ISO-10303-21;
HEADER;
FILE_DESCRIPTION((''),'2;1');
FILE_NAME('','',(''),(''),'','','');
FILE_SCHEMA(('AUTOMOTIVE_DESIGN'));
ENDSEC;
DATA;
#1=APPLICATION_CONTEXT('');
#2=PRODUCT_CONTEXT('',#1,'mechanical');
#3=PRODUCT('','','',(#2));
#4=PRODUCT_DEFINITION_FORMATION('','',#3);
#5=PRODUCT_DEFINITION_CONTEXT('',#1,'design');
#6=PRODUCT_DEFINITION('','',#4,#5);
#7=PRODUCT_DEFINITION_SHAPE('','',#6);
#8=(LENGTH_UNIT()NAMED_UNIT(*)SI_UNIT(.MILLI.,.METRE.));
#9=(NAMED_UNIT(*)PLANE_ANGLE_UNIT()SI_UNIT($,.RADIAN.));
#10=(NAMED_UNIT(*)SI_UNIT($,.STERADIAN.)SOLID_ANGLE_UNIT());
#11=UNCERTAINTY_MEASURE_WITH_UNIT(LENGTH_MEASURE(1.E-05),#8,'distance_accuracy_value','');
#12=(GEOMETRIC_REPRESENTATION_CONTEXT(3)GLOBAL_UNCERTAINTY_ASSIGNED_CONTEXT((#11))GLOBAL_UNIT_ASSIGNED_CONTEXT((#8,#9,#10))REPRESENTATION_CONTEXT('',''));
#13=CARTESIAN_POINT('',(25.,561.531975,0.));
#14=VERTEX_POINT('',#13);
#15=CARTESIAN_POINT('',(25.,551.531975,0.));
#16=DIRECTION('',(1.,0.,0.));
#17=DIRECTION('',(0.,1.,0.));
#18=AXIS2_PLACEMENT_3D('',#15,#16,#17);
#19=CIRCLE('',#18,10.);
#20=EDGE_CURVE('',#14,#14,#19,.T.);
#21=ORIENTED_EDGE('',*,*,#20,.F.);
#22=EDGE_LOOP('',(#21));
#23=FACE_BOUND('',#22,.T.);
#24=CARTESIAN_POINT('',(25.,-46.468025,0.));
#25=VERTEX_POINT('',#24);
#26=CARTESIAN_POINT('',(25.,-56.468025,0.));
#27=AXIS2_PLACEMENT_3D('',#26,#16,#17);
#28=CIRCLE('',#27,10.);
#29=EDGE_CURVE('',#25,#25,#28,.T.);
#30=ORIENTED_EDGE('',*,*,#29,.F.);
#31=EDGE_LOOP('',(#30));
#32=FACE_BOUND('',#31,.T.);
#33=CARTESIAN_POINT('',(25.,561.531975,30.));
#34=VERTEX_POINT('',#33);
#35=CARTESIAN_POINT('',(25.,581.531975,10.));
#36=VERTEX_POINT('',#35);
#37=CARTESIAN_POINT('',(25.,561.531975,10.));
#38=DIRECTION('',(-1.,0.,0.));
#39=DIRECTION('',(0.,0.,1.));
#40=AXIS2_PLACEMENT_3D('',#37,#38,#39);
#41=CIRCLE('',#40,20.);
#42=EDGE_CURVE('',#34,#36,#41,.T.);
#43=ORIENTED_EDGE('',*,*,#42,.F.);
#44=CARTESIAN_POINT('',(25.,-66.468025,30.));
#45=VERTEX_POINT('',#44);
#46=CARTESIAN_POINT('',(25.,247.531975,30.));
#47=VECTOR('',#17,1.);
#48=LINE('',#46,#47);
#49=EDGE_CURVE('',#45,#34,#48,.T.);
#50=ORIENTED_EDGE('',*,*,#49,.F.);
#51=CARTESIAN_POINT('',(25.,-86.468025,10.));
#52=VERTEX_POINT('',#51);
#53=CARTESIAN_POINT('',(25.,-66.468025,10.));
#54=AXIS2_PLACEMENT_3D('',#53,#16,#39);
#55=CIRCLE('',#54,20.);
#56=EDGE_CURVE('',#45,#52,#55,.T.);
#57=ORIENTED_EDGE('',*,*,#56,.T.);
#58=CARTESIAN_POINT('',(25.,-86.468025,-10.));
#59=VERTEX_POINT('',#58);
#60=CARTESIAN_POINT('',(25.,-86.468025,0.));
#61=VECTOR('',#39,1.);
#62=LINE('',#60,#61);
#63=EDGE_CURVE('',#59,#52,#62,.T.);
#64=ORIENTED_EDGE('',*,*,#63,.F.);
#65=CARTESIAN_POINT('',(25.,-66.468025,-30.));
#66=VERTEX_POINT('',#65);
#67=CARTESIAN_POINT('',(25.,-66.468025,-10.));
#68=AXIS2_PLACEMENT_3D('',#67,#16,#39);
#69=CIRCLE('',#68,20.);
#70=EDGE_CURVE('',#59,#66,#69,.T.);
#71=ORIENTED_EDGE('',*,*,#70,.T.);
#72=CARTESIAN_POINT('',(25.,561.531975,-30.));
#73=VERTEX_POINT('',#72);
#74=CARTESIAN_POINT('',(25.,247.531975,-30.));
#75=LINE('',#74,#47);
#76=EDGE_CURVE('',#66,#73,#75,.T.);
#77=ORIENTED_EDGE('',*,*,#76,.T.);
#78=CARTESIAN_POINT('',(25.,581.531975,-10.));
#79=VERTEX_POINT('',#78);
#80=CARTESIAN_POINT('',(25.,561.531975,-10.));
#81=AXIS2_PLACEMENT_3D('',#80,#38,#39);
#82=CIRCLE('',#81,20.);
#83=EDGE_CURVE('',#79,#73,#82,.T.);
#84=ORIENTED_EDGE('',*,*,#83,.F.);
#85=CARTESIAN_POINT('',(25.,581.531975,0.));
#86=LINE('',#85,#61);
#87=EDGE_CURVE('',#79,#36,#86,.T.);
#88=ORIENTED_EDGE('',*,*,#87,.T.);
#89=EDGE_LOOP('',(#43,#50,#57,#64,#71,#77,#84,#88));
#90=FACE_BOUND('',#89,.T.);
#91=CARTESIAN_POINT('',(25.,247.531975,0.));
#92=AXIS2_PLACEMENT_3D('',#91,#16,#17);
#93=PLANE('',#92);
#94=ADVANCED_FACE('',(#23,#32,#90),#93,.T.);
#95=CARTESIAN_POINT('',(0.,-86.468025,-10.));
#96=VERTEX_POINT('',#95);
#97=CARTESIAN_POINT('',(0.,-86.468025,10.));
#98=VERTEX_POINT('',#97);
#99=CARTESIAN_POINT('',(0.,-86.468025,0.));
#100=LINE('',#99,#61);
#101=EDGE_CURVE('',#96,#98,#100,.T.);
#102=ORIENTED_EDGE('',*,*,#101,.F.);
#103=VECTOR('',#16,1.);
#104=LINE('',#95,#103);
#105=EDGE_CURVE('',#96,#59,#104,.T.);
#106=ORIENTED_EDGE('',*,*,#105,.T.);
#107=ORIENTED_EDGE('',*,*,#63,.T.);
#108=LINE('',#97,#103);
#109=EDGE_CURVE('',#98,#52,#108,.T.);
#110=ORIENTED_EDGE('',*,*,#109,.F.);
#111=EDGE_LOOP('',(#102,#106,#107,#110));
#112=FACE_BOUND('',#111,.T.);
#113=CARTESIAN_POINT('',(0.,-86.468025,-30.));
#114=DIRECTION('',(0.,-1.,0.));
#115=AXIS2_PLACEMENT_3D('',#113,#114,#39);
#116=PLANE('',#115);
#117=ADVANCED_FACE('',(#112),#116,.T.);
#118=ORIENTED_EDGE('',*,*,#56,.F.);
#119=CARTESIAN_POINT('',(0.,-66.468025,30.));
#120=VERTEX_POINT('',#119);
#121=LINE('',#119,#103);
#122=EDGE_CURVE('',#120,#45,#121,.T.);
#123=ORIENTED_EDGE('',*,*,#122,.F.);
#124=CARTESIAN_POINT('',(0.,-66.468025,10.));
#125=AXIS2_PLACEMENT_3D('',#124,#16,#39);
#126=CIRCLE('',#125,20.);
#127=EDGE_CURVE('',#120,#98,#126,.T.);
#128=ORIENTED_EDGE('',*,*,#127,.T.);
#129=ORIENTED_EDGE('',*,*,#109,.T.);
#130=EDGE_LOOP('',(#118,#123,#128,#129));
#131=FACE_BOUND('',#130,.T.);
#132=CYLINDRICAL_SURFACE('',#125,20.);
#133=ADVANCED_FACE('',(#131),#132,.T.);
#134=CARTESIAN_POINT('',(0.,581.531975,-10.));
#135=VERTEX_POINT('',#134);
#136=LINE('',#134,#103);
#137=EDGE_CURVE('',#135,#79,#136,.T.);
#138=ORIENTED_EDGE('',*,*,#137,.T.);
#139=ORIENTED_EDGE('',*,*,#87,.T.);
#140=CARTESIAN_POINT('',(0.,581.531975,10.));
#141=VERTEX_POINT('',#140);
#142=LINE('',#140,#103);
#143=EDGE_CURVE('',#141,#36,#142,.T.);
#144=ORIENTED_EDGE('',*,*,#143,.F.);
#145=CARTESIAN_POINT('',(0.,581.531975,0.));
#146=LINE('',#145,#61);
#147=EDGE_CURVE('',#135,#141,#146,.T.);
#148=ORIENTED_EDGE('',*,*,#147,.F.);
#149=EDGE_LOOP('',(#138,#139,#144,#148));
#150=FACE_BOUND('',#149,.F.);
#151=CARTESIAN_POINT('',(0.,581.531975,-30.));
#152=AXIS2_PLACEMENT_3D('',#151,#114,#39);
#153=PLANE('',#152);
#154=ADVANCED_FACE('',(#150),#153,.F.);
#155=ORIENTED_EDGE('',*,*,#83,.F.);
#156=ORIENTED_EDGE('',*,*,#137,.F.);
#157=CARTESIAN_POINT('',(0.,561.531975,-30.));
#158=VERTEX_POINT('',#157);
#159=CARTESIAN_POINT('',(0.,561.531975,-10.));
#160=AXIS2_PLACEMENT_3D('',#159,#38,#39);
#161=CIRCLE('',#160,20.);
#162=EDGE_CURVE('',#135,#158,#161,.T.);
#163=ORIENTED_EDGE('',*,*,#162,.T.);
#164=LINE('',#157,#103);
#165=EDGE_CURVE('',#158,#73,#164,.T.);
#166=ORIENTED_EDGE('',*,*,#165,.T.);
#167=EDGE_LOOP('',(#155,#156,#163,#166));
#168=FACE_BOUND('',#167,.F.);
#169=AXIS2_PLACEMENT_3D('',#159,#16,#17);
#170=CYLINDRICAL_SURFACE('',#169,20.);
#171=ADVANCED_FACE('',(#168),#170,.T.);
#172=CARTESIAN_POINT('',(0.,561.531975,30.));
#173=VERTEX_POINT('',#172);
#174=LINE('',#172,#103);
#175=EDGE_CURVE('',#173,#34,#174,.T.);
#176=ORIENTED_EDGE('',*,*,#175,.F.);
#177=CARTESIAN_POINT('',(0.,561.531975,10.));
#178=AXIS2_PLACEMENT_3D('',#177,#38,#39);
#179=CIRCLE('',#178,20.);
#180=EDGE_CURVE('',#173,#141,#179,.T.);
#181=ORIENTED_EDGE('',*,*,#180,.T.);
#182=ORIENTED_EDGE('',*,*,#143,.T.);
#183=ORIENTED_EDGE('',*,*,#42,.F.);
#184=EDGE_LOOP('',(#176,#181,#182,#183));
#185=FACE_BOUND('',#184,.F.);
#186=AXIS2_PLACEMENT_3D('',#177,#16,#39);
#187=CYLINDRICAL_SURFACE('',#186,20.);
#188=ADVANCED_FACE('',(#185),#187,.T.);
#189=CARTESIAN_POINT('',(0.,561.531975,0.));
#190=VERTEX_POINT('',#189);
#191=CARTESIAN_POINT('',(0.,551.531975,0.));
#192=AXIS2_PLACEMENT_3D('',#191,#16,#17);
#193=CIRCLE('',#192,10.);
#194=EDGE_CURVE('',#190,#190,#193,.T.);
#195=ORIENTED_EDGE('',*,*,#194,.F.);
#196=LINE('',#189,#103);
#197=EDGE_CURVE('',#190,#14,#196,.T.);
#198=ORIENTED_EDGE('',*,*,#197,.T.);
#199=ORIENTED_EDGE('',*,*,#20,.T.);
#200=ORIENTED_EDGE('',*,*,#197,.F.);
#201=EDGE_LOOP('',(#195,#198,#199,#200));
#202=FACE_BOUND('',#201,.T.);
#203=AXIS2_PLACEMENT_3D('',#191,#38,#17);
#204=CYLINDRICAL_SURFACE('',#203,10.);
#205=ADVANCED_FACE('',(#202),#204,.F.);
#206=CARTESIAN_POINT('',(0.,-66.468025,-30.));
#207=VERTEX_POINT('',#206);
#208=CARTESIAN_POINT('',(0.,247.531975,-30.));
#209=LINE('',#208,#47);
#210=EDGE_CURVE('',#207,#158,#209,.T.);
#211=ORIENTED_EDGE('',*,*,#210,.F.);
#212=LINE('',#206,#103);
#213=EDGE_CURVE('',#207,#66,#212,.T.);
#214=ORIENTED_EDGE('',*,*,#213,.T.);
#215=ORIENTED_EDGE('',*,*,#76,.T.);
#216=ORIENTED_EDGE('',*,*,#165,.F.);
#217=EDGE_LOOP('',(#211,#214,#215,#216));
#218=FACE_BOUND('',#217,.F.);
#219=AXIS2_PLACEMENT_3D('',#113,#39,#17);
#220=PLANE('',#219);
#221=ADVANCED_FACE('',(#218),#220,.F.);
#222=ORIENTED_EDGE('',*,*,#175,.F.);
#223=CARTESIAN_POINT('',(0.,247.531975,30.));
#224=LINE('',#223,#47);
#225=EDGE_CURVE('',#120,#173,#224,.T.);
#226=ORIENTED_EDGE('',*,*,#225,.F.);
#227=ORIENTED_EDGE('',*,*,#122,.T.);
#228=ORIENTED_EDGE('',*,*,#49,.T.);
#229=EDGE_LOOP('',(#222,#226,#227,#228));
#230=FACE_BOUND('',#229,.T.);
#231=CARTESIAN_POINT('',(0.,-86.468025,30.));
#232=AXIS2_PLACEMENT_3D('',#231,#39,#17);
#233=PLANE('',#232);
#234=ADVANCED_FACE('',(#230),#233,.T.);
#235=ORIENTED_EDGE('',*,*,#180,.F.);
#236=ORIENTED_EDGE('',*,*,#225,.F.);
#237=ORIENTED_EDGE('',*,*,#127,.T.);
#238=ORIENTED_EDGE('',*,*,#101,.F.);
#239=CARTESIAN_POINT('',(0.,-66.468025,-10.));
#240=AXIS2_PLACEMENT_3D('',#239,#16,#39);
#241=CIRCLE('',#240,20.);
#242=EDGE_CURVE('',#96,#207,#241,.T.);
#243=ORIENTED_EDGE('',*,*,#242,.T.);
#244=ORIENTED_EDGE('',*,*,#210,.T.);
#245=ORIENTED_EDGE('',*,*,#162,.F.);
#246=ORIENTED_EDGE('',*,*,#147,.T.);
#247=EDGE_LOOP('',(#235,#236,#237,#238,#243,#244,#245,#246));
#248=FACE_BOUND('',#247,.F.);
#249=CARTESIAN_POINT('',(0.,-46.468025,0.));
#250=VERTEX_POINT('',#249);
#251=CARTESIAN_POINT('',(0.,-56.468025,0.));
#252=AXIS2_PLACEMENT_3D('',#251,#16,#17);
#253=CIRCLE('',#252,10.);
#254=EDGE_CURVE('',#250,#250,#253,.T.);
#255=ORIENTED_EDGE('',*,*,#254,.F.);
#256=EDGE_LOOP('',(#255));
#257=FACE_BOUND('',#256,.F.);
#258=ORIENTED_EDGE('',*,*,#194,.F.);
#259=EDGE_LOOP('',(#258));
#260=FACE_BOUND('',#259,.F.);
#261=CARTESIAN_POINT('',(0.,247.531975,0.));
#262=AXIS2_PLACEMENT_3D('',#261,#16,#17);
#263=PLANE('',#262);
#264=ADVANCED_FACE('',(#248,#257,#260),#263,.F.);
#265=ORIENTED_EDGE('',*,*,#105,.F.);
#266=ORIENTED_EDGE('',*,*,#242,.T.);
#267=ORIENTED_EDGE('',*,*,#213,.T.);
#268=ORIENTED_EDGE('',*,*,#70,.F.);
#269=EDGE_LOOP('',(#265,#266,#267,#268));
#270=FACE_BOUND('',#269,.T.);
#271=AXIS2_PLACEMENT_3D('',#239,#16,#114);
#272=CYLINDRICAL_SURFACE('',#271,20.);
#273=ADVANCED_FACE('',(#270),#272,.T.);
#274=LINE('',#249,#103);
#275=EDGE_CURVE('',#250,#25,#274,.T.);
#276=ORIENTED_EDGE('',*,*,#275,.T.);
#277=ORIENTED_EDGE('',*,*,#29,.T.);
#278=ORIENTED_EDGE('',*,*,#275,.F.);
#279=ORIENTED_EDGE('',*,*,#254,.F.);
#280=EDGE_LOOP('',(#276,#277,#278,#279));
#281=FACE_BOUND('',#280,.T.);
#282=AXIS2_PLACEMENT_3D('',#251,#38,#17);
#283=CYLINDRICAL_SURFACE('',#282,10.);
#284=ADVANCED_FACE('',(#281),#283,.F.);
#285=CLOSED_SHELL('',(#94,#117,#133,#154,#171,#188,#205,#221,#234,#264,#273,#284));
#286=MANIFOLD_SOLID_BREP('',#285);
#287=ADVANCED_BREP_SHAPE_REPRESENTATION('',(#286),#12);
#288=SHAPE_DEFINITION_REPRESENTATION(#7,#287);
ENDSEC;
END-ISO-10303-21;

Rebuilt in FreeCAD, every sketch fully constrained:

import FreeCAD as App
import Part
import Sketcher

V = App.Vector
Q = App.Units.Quantity


def edges_at(feature, points):
    """Names of the edges that pass closest to the given points."""
    edges = feature.Shape.Edges
    near = lambda p: min(range(len(edges)), key=lambda i: edges[i].distToShape(Part.Vertex(*p))[0])
    return sorted({f"Edge{near(p) + 1}" for p in points})


def add_polygon(sketch, points):
    """Adds a closed chain of lines whose ends are joined by coincident constraints."""
    first, n = sketch.GeometryCount, len(points)
    for a, b in zip(points, points[1:] + points[:1]):
        sketch.addGeometry(Part.LineSegment(App.Vector(*a, 0), App.Vector(*b, 0)), False)
    for i in range(n):
        sketch.addConstraint(Sketcher.Constraint("Coincident", first + i, 2, first + (i + 1) % n, 1))

doc = App.newDocument("Part")
body = doc.addObject("PartDesign::Body", "Body")

# Sketch on YZ plane
sketch1 = body.newObject("Sketcher::SketchObject", "Sketch")
sketch1.AttachmentSupport = (doc.getObject("YZ_Plane"), [""])
sketch1.MapMode = "FlatFace"
add_polygon(sketch1, [(-86, 30), (-86, -30), (582, -30), (582, 30)])  # lines 0-3
sketch1.addGeometry(Part.Circle(V(-56, 0, 0), V(0, 0, 1), 10), False)  # 4
sketch1.addGeometry(Part.Circle(V(552, 0, 0), V(0, 0, 1), 10), False)  # 5
sketch1.addConstraint([
    Sketcher.Constraint("Vertical", 0),
    Sketcher.Constraint("Horizontal", 1),
    Sketcher.Constraint("Vertical", 2),
    Sketcher.Constraint("Horizontal", 3),
    Sketcher.Constraint("Equal", 4, 5),
    Sketcher.Constraint("PointOnObject", 4, 3, -1),
    Sketcher.Constraint("PointOnObject", 5, 3, -1),
    Sketcher.Constraint("Diameter", 4, Q("20 mm")),
    Sketcher.Constraint("DistanceX", 1, 1, 1, 2, Q("668 mm")),
    Sketcher.Constraint("DistanceY", 0, 2, 0, 1, Q("60 mm")),
    Sketcher.Constraint("DistanceY", 0, 2, -1, 1, Q("30 mm")),
    Sketcher.Constraint("DistanceX", 4, 3, 5, 3, Q("608 mm")),
    Sketcher.Constraint("DistanceX", 0, 2, 4, 3, Q("30 mm")),
    Sketcher.Constraint("DistanceX", 4, 3, -1, 1, Q("56.468025 mm")),
])
pad1 = body.newObject("PartDesign::Pad", "Pad")
pad1.Profile = sketch1
pad1.Length = 25
doc.recompute()

fillet = body.newObject("PartDesign::Fillet", "Fillet")
fillet.Base = (pad1, edges_at(pad1, [(12.5, 581.532, 30)]))
fillet.Radius = 20
doc.recompute()

fillet2 = body.newObject("PartDesign::Fillet", "Fillet001")
fillet2.Base = (fillet, edges_at(fillet, [(12.5, 581.532, -30)]))
fillet2.Radius = 20
doc.recompute()

fillet3 = body.newObject("PartDesign::Fillet", "Fillet002")
fillet3.Base = (fillet2, edges_at(fillet2, [(12.5, -86.468, 30)]))
fillet3.Radius = 20
doc.recompute()

fillet4 = body.newObject("PartDesign::Fillet", "Fillet003")
fillet4.Base = (fillet3, edges_at(fillet3, [(12.5, -86.468, -30)]))
fillet4.Radius = 20

doc.recompute()
